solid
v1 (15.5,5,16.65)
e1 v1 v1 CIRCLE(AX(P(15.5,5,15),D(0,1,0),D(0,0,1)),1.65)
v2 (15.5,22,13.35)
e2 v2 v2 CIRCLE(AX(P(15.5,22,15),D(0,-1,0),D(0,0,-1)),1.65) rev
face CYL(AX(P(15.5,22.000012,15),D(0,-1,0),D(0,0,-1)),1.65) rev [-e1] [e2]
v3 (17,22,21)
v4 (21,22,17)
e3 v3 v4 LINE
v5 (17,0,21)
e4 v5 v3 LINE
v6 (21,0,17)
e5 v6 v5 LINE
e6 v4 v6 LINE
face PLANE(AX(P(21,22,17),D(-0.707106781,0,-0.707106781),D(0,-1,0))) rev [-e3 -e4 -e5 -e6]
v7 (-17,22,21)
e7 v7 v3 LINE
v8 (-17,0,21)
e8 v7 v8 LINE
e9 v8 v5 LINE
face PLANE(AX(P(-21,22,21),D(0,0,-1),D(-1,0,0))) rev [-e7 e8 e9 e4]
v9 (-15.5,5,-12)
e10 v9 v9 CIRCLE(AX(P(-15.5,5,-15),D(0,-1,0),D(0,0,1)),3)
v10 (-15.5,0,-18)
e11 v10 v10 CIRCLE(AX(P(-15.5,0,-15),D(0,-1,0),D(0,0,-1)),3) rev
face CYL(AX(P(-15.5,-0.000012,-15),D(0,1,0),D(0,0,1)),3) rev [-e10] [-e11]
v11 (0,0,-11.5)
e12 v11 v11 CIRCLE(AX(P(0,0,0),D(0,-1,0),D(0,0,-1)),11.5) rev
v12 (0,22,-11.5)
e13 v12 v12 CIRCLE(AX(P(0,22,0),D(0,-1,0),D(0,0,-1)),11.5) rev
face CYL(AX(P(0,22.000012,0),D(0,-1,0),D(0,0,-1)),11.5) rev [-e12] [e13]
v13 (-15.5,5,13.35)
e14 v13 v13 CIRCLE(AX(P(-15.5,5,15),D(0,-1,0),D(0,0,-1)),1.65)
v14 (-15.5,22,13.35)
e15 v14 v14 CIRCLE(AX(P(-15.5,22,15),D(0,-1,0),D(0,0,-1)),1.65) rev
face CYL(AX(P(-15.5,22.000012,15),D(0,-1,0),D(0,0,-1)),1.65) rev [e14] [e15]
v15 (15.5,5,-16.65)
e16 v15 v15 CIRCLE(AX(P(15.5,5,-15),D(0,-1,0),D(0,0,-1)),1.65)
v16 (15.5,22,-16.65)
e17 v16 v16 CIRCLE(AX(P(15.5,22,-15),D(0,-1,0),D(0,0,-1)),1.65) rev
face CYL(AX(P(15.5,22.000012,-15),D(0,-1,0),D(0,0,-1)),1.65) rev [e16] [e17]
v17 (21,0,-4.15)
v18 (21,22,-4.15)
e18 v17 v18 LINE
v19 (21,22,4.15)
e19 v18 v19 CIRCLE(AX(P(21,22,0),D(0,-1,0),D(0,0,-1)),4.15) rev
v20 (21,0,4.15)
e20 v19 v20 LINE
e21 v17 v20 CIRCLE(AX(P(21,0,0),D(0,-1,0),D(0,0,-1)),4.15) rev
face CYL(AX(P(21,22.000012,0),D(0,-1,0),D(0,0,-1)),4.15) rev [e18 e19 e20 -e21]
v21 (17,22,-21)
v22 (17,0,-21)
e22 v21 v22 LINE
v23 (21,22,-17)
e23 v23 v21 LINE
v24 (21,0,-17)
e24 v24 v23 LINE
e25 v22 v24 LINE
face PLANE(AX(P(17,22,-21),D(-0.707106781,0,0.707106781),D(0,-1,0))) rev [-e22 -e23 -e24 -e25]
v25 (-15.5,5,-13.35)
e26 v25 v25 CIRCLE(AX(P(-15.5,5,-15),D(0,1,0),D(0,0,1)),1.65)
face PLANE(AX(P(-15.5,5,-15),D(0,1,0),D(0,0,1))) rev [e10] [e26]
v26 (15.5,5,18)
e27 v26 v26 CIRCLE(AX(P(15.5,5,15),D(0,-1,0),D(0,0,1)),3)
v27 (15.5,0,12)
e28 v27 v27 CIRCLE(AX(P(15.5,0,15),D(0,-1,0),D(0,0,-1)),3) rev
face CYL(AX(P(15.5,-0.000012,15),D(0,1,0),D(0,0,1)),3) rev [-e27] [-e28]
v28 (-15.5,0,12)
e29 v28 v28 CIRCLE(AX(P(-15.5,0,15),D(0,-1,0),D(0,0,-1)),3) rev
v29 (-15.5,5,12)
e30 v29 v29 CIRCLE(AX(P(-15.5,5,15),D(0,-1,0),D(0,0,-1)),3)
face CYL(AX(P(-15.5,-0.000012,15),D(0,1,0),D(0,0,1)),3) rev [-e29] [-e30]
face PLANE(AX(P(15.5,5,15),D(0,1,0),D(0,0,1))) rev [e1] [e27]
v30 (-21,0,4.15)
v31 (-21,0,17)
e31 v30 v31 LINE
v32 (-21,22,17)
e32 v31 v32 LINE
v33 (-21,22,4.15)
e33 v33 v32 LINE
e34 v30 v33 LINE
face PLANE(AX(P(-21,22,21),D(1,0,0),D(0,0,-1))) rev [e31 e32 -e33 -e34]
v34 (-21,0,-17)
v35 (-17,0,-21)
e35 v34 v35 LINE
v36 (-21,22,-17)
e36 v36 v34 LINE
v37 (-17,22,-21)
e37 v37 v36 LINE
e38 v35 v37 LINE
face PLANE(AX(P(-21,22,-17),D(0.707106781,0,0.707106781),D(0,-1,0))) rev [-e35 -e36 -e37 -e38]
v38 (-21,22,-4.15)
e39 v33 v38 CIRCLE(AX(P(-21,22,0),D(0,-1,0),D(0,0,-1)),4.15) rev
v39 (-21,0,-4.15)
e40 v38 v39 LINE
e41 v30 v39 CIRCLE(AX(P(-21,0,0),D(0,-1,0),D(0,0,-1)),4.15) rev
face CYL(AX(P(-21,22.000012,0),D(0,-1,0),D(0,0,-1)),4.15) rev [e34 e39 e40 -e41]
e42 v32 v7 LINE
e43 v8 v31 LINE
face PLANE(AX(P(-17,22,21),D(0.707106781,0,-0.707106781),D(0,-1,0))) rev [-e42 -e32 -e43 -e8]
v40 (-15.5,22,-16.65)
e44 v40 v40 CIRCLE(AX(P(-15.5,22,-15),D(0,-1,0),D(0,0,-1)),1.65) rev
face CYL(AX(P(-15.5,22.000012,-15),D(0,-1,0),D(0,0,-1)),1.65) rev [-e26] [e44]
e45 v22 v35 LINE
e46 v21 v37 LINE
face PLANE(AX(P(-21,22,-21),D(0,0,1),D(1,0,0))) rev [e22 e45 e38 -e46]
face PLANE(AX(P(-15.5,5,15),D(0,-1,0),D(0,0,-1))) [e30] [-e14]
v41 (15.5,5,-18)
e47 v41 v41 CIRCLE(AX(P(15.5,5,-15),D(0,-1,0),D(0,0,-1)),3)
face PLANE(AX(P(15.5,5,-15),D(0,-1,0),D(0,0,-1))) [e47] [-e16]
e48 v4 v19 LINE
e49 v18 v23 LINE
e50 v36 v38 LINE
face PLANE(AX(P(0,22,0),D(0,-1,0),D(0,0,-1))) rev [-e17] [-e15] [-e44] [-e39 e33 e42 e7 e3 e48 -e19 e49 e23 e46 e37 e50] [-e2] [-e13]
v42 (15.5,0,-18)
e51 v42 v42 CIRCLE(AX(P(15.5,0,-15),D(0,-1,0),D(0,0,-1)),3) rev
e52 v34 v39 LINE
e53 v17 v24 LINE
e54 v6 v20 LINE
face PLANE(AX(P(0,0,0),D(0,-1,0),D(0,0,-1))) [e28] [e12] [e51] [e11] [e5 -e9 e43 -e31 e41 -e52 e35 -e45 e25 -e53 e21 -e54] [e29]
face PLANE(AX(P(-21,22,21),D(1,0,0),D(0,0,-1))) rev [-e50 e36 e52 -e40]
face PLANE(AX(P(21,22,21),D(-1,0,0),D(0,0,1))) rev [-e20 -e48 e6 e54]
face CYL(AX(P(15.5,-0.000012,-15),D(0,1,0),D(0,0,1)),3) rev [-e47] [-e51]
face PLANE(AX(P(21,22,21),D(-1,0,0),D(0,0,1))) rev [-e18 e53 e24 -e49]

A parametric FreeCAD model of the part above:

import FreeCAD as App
import Part
import Sketcher
Q = App.Units.Quantity


def edges_at(feature, points):
    """Names of the edges that pass closest to the given points."""
    edges = feature.Shape.Edges
    near = lambda p: min(range(len(edges)), key=lambda i: edges[i].distToShape(Part.Vertex(*p))[0])
    return sorted({f"Edge{near(p) + 1}" for p in points})

doc = App.newDocument("Part")
body = doc.addObject("PartDesign::Body", "Body")

# Sketch on XZ plane
sketch1 = doc.addObject("Sketcher::SketchObject", "Sketch")
body.addObject(sketch1)
sketch1.AttachmentSupport = (doc.XZ_Plane, [""])
sketch1.MapMode = "FlatFace"
sketch1.addGeometry(Part.LineSegment(App.Vector(-21, -21, 0), App.Vector(-21, 21, 0)), False)
sketch1.addGeometry(Part.LineSegment(App.Vector(-21, 21, 0), App.Vector(21, 21, 0)), False)
sketch1.addGeometry(Part.LineSegment(App.Vector(21, 21, 0), App.Vector(21, -21, 0)), False)
sketch1.addGeometry(Part.LineSegment(App.Vector(21, -21, 0), App.Vector(-21, -21, 0)), False)
sketch1.addConstraint(Sketcher.Constraint("Coincident", 0, 2, 1, 1))
sketch1.addConstraint(Sketcher.Constraint("Coincident", 1, 2, 2, 1))
sketch1.addConstraint(Sketcher.Constraint("Coincident", 2, 2, 3, 1))
sketch1.addConstraint(Sketcher.Constraint("Coincident", 3, 2, 0, 1))
sketch1.addConstraint(Sketcher.Constraint("Vertical", 0))
sketch1.addConstraint(Sketcher.Constraint("Horizontal", 1))
sketch1.addConstraint(Sketcher.Constraint("Vertical", 2))
sketch1.addConstraint(Sketcher.Constraint("Horizontal", 3))
sketch1.addConstraint(Sketcher.Constraint("Symmetric", 0, 2, 2, 2, -1, 1))
sketch1.addConstraint(Sketcher.Constraint("Equal", 3, 0))
sketch1.addConstraint(Sketcher.Constraint("DistanceX", 1, 1, 1, 2, Q("42 mm")))
pad1 = doc.addObject("PartDesign::Pad", "Pad")
body.addObject(pad1)
pad1.Profile = sketch1
pad1.Length = 22
pad1.Reversed = True

# Sketch on XZ plane
sketch2 = doc.addObject("Sketcher::SketchObject", "Sketch001")
body.addObject(sketch2)
sketch2.AttachmentSupport = (doc.XZ_Plane, [""])
sketch2.MapMode = "FlatFace"
sketch2.AttachmentOffset = App.Placement(App.Vector(0, 0, -22), App.Rotation())
sketch2.addGeometry(Part.Circle(App.Vector(0, 0, 0), App.Vector(0, 0, 1), 11.5), False)
sketch2.addConstraint(Sketcher.Constraint("Coincident", 0, 3, -1, 1))
sketch2.addConstraint(Sketcher.Constraint("Diameter", 0, Q("23 mm")))
pocket1 = doc.addObject("PartDesign::Pocket", "Pocket")
body.addObject(pocket1)
pocket1.Profile = sketch2
pocket1.Type = "UpToFirst"
pocket1.Reversed = True

# Sketch on XZ plane
sketch3 = doc.addObject("Sketcher::SketchObject", "Sketch002")
body.addObject(sketch3)
sketch3.AttachmentSupport = (doc.XZ_Plane, [""])
sketch3.MapMode = "FlatFace"
sketch3.AttachmentOffset = App.Placement(App.Vector(0, 0, -22), App.Rotation())
sketch3.addGeometry(Part.Circle(App.Vector(-15.5, -15, 0), App.Vector(0, 0, 1), 1.65), False)
sketch3.addConstraint(Sketcher.Constraint("Diameter", 0, Q("3.3 mm")))
sketch3.addConstraint(Sketcher.Constraint("DistanceY", 0, 3, -1, 1, Q("15 mm")))
sketch3.addConstraint(Sketcher.Constraint("DistanceX", 0, 3, -1, 1, Q("15.5 mm")))
pocket2 = doc.addObject("PartDesign::Pocket", "Pocket001")
body.addObject(pocket2)
pocket2.Profile = sketch3
pocket2.Type = "UpToFirst"
pocket2.Reversed = True

# Sketch on XZ plane
sketch4 = doc.addObject("Sketcher::SketchObject", "Sketch003")
body.addObject(sketch4)
sketch4.AttachmentSupport = (doc.XZ_Plane, [""])
sketch4.MapMode = "FlatFace"
sketch4.AttachmentOffset = App.Placement(App.Vector(0, 0, -22), App.Rotation())
sketch4.addGeometry(Part.Circle(App.Vector(15.5, -15, 0), App.Vector(0, 0, 1), 1.65), False)
sketch4.addConstraint(Sketcher.Constraint("Diameter", 0, Q("3.3 mm")))
sketch4.addConstraint(Sketcher.Constraint("DistanceY", 0, 3, -1, 1, Q("15 mm")))
sketch4.addConstraint(Sketcher.Constraint("DistanceX", -1, 1, 0, 3, Q("15.5 mm")))
pocket3 = doc.addObject("PartDesign::Pocket", "Pocket002")
body.addObject(pocket3)
pocket3.Profile = sketch4
pocket3.Type = "UpToFirst"
pocket3.Reversed = True

# Sketch on XZ plane
sketch5 = doc.addObject("Sketcher::SketchObject", "Sketch004")
body.addObject(sketch5)
sketch5.AttachmentSupport = (doc.XZ_Plane, [""])
sketch5.MapMode = "FlatFace"
sketch5.AttachmentOffset = App.Placement(App.Vector(0, 0, -22), App.Rotation())
sketch5.addGeometry(Part.Circle(App.Vector(15.5, 15, 0), App.Vector(0, 0, 1), 1.65), False)
sketch5.addConstraint(Sketcher.Constraint("Diameter", 0, Q("3.3 mm")))
sketch5.addConstraint(Sketcher.Constraint("DistanceY", -1, 1, 0, 3, Q("15 mm")))
sketch5.addConstraint(Sketcher.Constraint("DistanceX", -1, 1, 0, 3, Q("15.5 mm")))
pocket4 = doc.addObject("PartDesign::Pocket", "Pocket003")
body.addObject(pocket4)
pocket4.Profile = sketch5
pocket4.Type = "UpToFirst"
pocket4.Reversed = True

# Sketch on XZ plane
sketch6 = doc.addObject("Sketcher::SketchObject", "Sketch005")
body.addObject(sketch6)
sketch6.AttachmentSupport = (doc.XZ_Plane, [""])
sketch6.MapMode = "FlatFace"
sketch6.AttachmentOffset = App.Placement(App.Vector(0, 0, -22), App.Rotation())
sketch6.addGeometry(Part.Circle(App.Vector(-15.5, 15, 0), App.Vector(0, 0, 1), 1.65), False)
sketch6.addConstraint(Sketcher.Constraint("Diameter", 0, Q("3.3 mm")))
sketch6.addConstraint(Sketcher.Constraint("DistanceY", -1, 1, 0, 3, Q("15 mm")))
sketch6.addConstraint(Sketcher.Constraint("DistanceX", 0, 3, -1, 1, Q("15.5 mm")))
pocket5 = doc.addObject("PartDesign::Pocket", "Pocket004")
body.addObject(pocket5)
pocket5.Profile = sketch6
pocket5.Type = "UpToFirst"
pocket5.Reversed = True

# Sketch on XZ plane
sketch7 = doc.addObject("Sketcher::SketchObject", "Sketch006")
body.addObject(sketch7)
sketch7.AttachmentSupport = (doc.XZ_Plane, [""])
sketch7.MapMode = "FlatFace"
sketch7.AttachmentOffset = App.Placement(App.Vector(0, 0, -22), App.Rotation())
sketch7.addGeometry(Part.Circle(App.Vector(0, 0, 0), App.Vector(0, 0, 1), 11.5), False)
sketch7.addGeometry(Part.Circle(App.Vector(-15.5, -15, 0), App.Vector(0, 0, 1), 1.65), False)
sketch7.addGeometry(Part.Circle(App.Vector(15.5, -15, 0), App.Vector(0, 0, 1), 1.65), False)
sketch7.addGeometry(Part.Circle(App.Vector(15.5, 15, 0), App.Vector(0, 0, 1), 1.65), False)
sketch7.addGeometry(Part.Circle(App.Vector(-15.5, 15, 0), App.Vector(0, 0, 1), 1.65), False)
sketch7.addConstraint(Sketcher.Constraint("Coincident", 0, 3, -1, 1))
sketch7.addConstraint(Sketcher.Constraint("Equal", 1, 2))
sketch7.addConstraint(Sketcher.Constraint("Equal", 2, 3))
sketch7.addConstraint(Sketcher.Constraint("Equal", 3, 4))
sketch7.addConstraint(Sketcher.Constraint("Symmetric", 1, 3, 3, 3, -1, 1))
sketch7.addConstraint(Sketcher.Constraint("Symmetric", 2, 3, 4, 3, -1, 1))
sketch7.addConstraint(Sketcher.Constraint("Symmetric", 1, 3, 2, 3, -2))
sketch7.addConstraint(Sketcher.Constraint("Diameter", 0, Q("23 mm")))
sketch7.addConstraint(Sketcher.Constraint("Diameter", 1, Q("3.3 mm")))
sketch7.addConstraint(Sketcher.Constraint("DistanceY", 1, 3, -1, 1, Q("15 mm")))
sketch7.addConstraint(Sketcher.Constraint("DistanceX", 1, 3, 2, 3, Q("31 mm")))
pocket6 = doc.addObject("PartDesign::Pocket", "Pocket005")
body.addObject(pocket6)
pocket6.Profile = sketch7
pocket6.Length = 1
doc.recompute()

chamfer = doc.addObject("PartDesign::Chamfer", "Chamfer")
body.addObject(chamfer)
chamfer.Base = (pocket6, edges_at(pocket6, [
    (21, 11, 21),
    (-21, 11, 21),
    (-21, 11, -21),
    (21, 11, -21),
]))
chamfer.Size = 4

# Sketch on XZ plane
sketch8 = doc.addObject("Sketcher::SketchObject", "Sketch007")
body.addObject(sketch8)
sketch8.AttachmentSupport = (doc.XZ_Plane, [""])
sketch8.MapMode = "FlatFace"
sketch8.addGeometry(Part.Circle(App.Vector(-15.5, 15, 0), App.Vector(0, 0, 1), 3), False)
sketch8.addGeometry(Part.Circle(App.Vector(15.5, 15, 0), App.Vector(0, 0, 1), 3), False)
sketch8.addGeometry(Part.Circle(App.Vector(15.5, -15, 0), App.Vector(0, 0, 1), 3), False)
sketch8.addGeometry(Part.Circle(App.Vector(-15.5, -15, 0), App.Vector(0, 0, 1), 3), False)
sketch8.addConstraint(Sketcher.Constraint("Equal", 0, 1))
sketch8.addConstraint(Sketcher.Constraint("Equal", 1, 2))
sketch8.addConstraint(Sketcher.Constraint("Equal", 2, 3))
sketch8.addConstraint(Sketcher.Constraint("Symmetric", 0, 3, 2, 3, -1, 1))
sketch8.addConstraint(Sketcher.Constraint("Symmetric", 1, 3, 3, 3, -1, 1))
sketch8.addConstraint(Sketcher.Constraint("Symmetric", 0, 3, 1, 3, -2))
sketch8.addConstraint(Sketcher.Constraint("Diameter", 0, Q("6 mm")))
sketch8.addConstraint(Sketcher.Constraint("DistanceY", -1, 1, 0, 3, Q("15 mm")))
sketch8.addConstraint(Sketcher.Constraint("DistanceX", 0, 3, 1, 3, Q("31 mm")))
pocket7 = doc.addObject("PartDesign::Pocket", "Pocket006")
body.addObject(pocket7)
pocket7.Profile = sketch8
pocket7.Type = "TwoLengths"
pocket7.Length = 1
pocket7.Length2 = 5
pocket7.Reversed = True

# Sketch on XZ plane
sketch9 = doc.addObject("Sketcher::SketchObject", "Sketch008")
body.addObject(sketch9)
sketch9.AttachmentSupport = (doc.XZ_Plane, [""])
sketch9.MapMode = "FlatFace"
sketch9.AttachmentOffset = App.Placement(App.Vector(0, 0, -22), App.Rotation())
sketch9.addGeometry(Part.Circle(App.Vector(-21, 0, 0), App.Vector(0, 0, 1), 4.15), False)
sketch9.addConstraint(Sketcher.Constraint("PointOnObject", 0, 3, -1))
sketch9.addConstraint(Sketcher.Constraint("Diameter", 0, Q("8.3 mm")))
sketch9.addConstraint(Sketcher.Constraint("DistanceX", 0, 3, -1, 1, Q("21 mm")))
pocket8 = doc.addObject("PartDesign::Pocket", "Pocket007")
body.addObject(pocket8)
pocket8.Profile = sketch9
pocket8.Type = "UpToFirst"
pocket8.Reversed = True

# Sketch on XZ plane
sketch10 = doc.addObject("Sketcher::SketchObject", "Sketch009")
body.addObject(sketch10)
sketch10.AttachmentSupport = (doc.XZ_Plane, [""])
sketch10.MapMode = "FlatFace"
sketch10.AttachmentOffset = App.Placement(App.Vector(0, 0, -22), App.Rotation())
sketch10.addGeometry(Part.Circle(App.Vector(21, 0, 0), App.Vector(0, 0, 1), 4.15), False)
sketch10.addConstraint(Sketcher.Constraint("PointOnObject", 0, 3, -1))
sketch10.addConstraint(Sketcher.Constraint("Diameter", 0, Q("8.3 mm")))
sketch10.addConstraint(Sketcher.Constraint("DistanceX", -1, 1, 0, 3, Q("21 mm")))
pocket9 = doc.addObject("PartDesign::Pocket", "Pocket008")
body.addObject(pocket9)
pocket9.Profile = sketch10
pocket9.Type = "UpToFirst"
pocket9.Reversed = True

# Sketch on XZ plane
sketch11 = doc.addObject("Sketcher::SketchObject", "Sketch010")
body.addObject(sketch11)
sketch11.AttachmentSupport = (doc.XZ_Plane, [""])
sketch11.MapMode = "FlatFace"
sketch11.AttachmentOffset = App.Placement(App.Vector(0, 0, -22), App.Rotation())
sketch11.addGeometry(Part.Circle(App.Vector(-21, 0, 0), App.Vector(0, 0, 1), 4.15), False)
sketch11.addGeometry(Part.Circle(App.Vector(21, 0, 0), App.Vector(0, 0, 1), 4.15), False)
sketch11.addConstraint(Sketcher.Constraint("Equal", 0, 1))
sketch11.addConstraint(Sketcher.Constraint("Symmetric", 0, 3, 1, 3, -1, 1))
sketch11.addConstraint(Sketcher.Constraint("PointOnObject", 0, 3, -1))
sketch11.addConstraint(Sketcher.Constraint("Diameter", 0, Q("8.3 mm")))
sketch11.addConstraint(Sketcher.Constraint("DistanceX", 0, 3, -1, 1, Q("21 mm")))
pocket10 = doc.addObject("PartDesign::Pocket", "Pocket009")
body.addObject(pocket10)
pocket10.Profile = sketch11
pocket10.Length = 1

doc.recompute()
